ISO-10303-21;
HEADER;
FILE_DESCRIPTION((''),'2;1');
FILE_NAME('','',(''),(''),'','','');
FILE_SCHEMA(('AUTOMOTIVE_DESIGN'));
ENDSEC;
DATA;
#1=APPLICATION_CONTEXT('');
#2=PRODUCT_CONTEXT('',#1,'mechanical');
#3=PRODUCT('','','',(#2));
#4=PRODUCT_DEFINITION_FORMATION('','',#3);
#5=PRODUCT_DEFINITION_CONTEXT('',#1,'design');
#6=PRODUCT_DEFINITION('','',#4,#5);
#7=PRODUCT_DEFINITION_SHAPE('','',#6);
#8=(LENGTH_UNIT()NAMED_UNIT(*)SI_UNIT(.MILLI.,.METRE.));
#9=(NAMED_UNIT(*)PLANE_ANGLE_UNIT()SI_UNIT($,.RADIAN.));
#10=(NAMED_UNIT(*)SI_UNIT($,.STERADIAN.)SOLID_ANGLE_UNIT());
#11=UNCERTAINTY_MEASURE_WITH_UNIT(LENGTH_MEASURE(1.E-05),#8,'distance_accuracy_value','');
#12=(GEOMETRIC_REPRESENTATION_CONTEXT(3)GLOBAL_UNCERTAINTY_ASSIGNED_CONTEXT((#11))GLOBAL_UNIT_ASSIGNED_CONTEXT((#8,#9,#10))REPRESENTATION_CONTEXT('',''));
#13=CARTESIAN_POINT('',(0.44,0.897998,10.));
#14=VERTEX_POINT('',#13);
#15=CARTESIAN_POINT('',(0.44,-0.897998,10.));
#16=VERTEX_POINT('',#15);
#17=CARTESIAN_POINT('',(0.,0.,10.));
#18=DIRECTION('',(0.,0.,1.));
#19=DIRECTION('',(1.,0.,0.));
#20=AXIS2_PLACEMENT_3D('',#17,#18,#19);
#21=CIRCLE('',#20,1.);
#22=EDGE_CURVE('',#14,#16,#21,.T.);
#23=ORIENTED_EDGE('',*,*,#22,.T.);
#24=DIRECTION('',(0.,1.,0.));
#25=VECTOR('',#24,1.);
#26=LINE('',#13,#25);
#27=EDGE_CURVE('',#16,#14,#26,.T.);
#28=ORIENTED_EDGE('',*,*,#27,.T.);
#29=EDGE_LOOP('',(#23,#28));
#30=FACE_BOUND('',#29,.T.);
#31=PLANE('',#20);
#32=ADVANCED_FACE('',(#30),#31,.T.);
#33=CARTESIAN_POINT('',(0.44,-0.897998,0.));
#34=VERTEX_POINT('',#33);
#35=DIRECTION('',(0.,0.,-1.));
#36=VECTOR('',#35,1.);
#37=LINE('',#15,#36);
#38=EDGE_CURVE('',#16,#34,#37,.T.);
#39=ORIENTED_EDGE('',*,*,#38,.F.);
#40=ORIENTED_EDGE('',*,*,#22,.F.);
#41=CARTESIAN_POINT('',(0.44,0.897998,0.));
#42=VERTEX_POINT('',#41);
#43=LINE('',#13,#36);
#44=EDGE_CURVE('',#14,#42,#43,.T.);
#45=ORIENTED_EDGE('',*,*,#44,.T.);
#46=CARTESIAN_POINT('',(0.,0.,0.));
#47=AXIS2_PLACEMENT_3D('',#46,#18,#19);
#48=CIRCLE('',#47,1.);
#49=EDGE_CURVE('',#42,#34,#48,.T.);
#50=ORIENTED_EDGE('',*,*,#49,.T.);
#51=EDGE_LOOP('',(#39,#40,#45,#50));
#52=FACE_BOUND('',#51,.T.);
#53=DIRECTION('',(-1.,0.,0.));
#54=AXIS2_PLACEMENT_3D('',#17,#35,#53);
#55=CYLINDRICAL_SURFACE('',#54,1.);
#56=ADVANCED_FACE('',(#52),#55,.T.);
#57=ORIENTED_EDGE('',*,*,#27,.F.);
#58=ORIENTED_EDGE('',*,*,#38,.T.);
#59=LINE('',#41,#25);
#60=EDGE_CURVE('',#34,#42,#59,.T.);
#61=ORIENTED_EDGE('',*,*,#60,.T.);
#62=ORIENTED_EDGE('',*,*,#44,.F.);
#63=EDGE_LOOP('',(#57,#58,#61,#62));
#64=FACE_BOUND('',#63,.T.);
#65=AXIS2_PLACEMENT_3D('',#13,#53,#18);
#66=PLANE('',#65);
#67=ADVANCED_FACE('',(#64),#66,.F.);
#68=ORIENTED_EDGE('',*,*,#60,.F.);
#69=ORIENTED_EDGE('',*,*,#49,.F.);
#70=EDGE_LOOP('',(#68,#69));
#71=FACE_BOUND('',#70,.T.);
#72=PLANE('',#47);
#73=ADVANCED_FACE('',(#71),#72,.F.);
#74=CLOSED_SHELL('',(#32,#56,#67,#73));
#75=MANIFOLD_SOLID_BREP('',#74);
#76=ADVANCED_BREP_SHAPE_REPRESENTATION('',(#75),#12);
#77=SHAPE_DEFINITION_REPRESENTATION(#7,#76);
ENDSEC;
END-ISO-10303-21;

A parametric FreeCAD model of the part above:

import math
import FreeCAD as App
import Part
import Sketcher

doc = App.newDocument("Part")
body = doc.addObject("PartDesign::Body", "Body")

sketch1 = body.newObject("Sketcher::SketchObject", "Sketch")
sketch1.AttachmentSupport = (doc.getObject("XY_Plane"), [""])
sketch1.MapMode = "FlatFace"
sketch1.addGeometry(Part.LineSegment(App.Vector(0.4, -0.9, 0), App.Vector(0.4, 0.9, 0)), False)
sketch1.addGeometry(Part.ArcOfCircle(Part.Circle(App.Vector(0, 0, 0), App.Vector(0, 0, 1), 1), math.radians(64), math.radians(296)), False)
sketch1.addConstraint(Sketcher.Constraint("Coincident", 0, 1, 1, 2))
sketch1.addConstraint(Sketcher.Constraint("Coincident", 1, 1, 0, 2))
sketch1.addConstraint(Sketcher.Constraint("Vertical", 0))
sketch1.addConstraint(Sketcher.Constraint("Coincident", 1, 3, -1, 1))
sketch1.addConstraint(Sketcher.Constraint("Radius", 1, 1.0))
sketch1.addConstraint(Sketcher.Constraint("DistanceX", -1, 1, 0, 1, 0.44))
pad1 = body.newObject("PartDesign::Pad", "Pad")
pad1.Profile = sketch1
pad1.Length = 10

doc.recompute()
